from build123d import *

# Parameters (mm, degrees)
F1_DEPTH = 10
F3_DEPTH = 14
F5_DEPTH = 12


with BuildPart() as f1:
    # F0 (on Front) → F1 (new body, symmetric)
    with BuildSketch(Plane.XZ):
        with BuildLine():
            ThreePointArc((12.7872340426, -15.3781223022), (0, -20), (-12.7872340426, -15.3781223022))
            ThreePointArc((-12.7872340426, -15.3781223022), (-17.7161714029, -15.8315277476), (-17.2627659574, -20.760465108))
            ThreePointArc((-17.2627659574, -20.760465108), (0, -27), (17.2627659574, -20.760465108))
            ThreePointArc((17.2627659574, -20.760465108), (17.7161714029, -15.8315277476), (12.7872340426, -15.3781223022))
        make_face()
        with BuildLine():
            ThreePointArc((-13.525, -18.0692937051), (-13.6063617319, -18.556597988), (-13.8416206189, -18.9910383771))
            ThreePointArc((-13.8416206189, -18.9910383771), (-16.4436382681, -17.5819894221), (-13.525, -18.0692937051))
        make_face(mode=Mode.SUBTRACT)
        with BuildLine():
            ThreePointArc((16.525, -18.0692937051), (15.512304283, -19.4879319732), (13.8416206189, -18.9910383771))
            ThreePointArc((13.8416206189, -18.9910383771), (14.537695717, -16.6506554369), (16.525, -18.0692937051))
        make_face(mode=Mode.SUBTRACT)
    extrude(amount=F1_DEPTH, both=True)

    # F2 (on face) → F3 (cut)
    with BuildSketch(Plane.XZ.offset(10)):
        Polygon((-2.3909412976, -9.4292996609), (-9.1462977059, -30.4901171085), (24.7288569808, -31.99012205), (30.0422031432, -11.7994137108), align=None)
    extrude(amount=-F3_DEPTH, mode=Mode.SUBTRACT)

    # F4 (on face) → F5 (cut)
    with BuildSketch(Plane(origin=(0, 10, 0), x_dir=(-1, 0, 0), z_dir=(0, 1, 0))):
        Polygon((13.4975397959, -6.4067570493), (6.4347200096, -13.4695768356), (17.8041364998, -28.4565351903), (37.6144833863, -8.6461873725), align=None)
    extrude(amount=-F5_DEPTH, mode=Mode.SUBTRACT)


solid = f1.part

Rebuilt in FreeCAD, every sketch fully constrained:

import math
import FreeCAD as App
import Part
import Sketcher

V = App.Vector
Q = App.Units.Quantity

doc = App.newDocument("Part")
body = doc.addObject("PartDesign::Body", "Body")

# Sketch on XZ plane
sketch1 = body.newObject("Sketcher::SketchObject", "Sketch")
sketch1.AttachmentSupport = (doc.getObject("XZ_Plane"), [""])
sketch1.MapMode = "FlatFace"
sketch1.addGeometry([
    Part.ArcOfCircle(Part.Circle(V(0, 0, 0), V(0, 0, 1), 20), math.radians(-130), math.radians(-50)),  # 0
    Part.ArcOfCircle(Part.Circle(V(-15, -18.1, 0), V(0, 0, 1), 3.5), math.radians(50), math.radians(230)),  # 1
    Part.ArcOfCircle(Part.Circle(V(0, 0, 0), V(0, 0, 1), 27), math.radians(-130), math.radians(-50)),  # 2
    Part.ArcOfCircle(Part.Circle(V(15, -18.1, 0), V(0, 0, 1), 3.5), math.radians(-50), math.radians(130)),  # 3
    Part.ArcOfCircle(Part.Circle(V(-15, -18.1, 0), V(0, 0, 1), 1.5), math.radians(0), math.radians(322)),  # 4
    Part.ArcOfCircle(Part.Circle(V(-15, -18.1, 0), V(0, 0, 1), 1.5), math.radians(-38), math.radians(0)),  # 5
    Part.ArcOfCircle(Part.Circle(V(15, -18.1, 0), V(0, 0, 1), 1.5), math.radians(0), math.radians(218)),  # 6
    Part.ArcOfCircle(Part.Circle(V(15, -18.1, 0), V(0, 0, 1), 1.5), math.radians(-142), math.radians(0)),  # 7
], False)
sketch1.addConstraint([
    Sketcher.Constraint("Tangent", 0, 1, 1, 1),
    Sketcher.Constraint("Tangent", 1, 2, 2, 1),
    Sketcher.Constraint("Tangent", 2, 2, 3, 1),
    Sketcher.Constraint("Tangent", 3, 2, 0, 2),
    Sketcher.Constraint("Tangent", 4, 1, 5, 2),
    Sketcher.Constraint("Coincident", 5, 1, 4, 2),
    Sketcher.Constraint("Tangent", 6, 1, 7, 2),
    Sketcher.Constraint("Coincident", 7, 1, 6, 2),
    Sketcher.Constraint("Coincident", 0, 3, -1, 1),
    Sketcher.Constraint("Coincident", 2, 3, -1, 1),
    Sketcher.Constraint("Coincident", 4, 3, 1, 3),
    Sketcher.Constraint("Coincident", 6, 3, 3, 3),
    Sketcher.Constraint("Equal", 5, 6),
    Sketcher.Constraint("Symmetric", 5, 1, 7, 1, -2),
    Sketcher.Constraint("Horizontal", 7, 3, 4, 1),
    Sketcher.Constraint("Horizontal", 4, 1, 6, 1),
    Sketcher.Constraint("Radius", 0, Q("20 mm")),
    Sketcher.Constraint("Radius", 2, Q("27 mm")),
    Sketcher.Constraint("Radius", 4, Q("1.5 mm")),
    Sketcher.Constraint("DistanceX", 1, 3, 3, 3, Q("30.05 mm")),
    Sketcher.Constraint("DistanceX", 5, 1, -1, 1, Q("13.841621 mm")),
])
pad1 = body.newObject("PartDesign::Pad", "Pad")
pad1.Profile = sketch1
pad1.Length = 20
pad1.Midplane = True

# Sketch on XZ plane
sketch2 = body.newObject("Sketcher::SketchObject", "Sketch001")
sketch2.AttachmentSupport = (doc.getObject("XZ_Plane"), [""])
sketch2.MapMode = "FlatFace"
sketch2.AttachmentOffset = App.Placement(V(0, 0, 10), App.Rotation())
sketch2.addGeometry([
    Part.LineSegment(V(-2.390941, -9.4293, 0), V(-9.146298, -30.490117, 0)),
    Part.LineSegment(V(-9.146298, -30.490117, 0), V(24.728857, -31.990122, 0)),
    Part.LineSegment(V(24.728857, -31.990122, 0), V(30.042203, -11.799414, 0)),
    Part.LineSegment(V(30.042203, -11.799414, 0), V(-2.390941, -9.4293, 0)),
], False)
sketch2.addConstraint([
    Sketcher.Constraint("Coincident", 0, 2, 1, 1),
    Sketcher.Constraint("Coincident", 1, 2, 2, 1),
    Sketcher.Constraint("Coincident", 2, 2, 3, 1),
    Sketcher.Constraint("Coincident", 3, 2, 0, 1),
    Sketcher.Constraint("DistanceY", 3, 2, -1, 1, Q("9.4293 mm")),
    Sketcher.Constraint("DistanceX", 0, 2, 2, 2, Q("39.188501 mm")),
    Sketcher.Constraint("DistanceX", 3, 2, 1, 2, Q("27.119798 mm")),
    Sketcher.Constraint("Distance", 1, Q("33.908349 mm")),
    Sketcher.Constraint("Distance", 2, Q("20.878131 mm")),
    Sketcher.Constraint("Distance", 3, Q("32.519629 mm")),
    Sketcher.Constraint("DistanceX", 3, 2, -1, 1, Q("2.390941 mm")),
    Sketcher.Constraint("DistanceY", 1, 2, 2, 2, Q("20.190708 mm")),
])
pocket1 = body.newObject("PartDesign::Pocket", "Pocket")
pocket1.Profile = sketch2
pocket1.Length = 14

# Sketch on XZ plane
sketch3 = body.newObject("Sketcher::SketchObject", "Sketch002")
sketch3.AttachmentSupport = (doc.getObject("XZ_Plane"), [""])
sketch3.MapMode = "FlatFace"
sketch3.AttachmentOffset = App.Placement(V(0, 0, -10), App.Rotation())
sketch3.addGeometry([
    Part.LineSegment(V(-13, -6, 0), V(-6, -13, 0)),
    Part.LineSegment(V(-6, -13, 0), V(-18, -28, 0)),
    Part.LineSegment(V(-18, -28, 0), V(-38, -9, 0)),
    Part.LineSegment(V(-38, -9, 0), V(-13, -6, 0)),
], False)
sketch3.addConstraint([
    Sketcher.Constraint("Coincident", 0, 2, 1, 1),
    Sketcher.Constraint("Coincident", 1, 2, 2, 1),
    Sketcher.Constraint("Coincident", 2, 2, 3, 1),
    Sketcher.Constraint("Coincident", 3, 2, 0, 1),
    Sketcher.Constraint("Parallel", 0, 2),
    Sketcher.Constraint("Angle", 0, Q("-45 deg")),
    Sketcher.Constraint("Distance", 1, Q("18.811501 mm")),
    Sketcher.Constraint("Distance", 2, Q("28.016062 mm")),
    Sketcher.Constraint("DistanceX", 0, 2, -1, 1, Q("6.43472 mm")),
    Sketcher.Constraint("DistanceX", 3, 2, -1, 1, Q("13.49754 mm")),
    Sketcher.Constraint("DistanceY", 1, 2, 0, 2, Q("14.986958 mm")),
    Sketcher.Constraint("DistanceY", 0, 2, -1, 1, Q("13.469577 mm")),
])
pocket2 = body.newObject("PartDesign::Pocket", "Pocket001")
pocket2.Profile = sketch3
pocket2.Length = 12
pocket2.Reversed = True

doc.recompute()
